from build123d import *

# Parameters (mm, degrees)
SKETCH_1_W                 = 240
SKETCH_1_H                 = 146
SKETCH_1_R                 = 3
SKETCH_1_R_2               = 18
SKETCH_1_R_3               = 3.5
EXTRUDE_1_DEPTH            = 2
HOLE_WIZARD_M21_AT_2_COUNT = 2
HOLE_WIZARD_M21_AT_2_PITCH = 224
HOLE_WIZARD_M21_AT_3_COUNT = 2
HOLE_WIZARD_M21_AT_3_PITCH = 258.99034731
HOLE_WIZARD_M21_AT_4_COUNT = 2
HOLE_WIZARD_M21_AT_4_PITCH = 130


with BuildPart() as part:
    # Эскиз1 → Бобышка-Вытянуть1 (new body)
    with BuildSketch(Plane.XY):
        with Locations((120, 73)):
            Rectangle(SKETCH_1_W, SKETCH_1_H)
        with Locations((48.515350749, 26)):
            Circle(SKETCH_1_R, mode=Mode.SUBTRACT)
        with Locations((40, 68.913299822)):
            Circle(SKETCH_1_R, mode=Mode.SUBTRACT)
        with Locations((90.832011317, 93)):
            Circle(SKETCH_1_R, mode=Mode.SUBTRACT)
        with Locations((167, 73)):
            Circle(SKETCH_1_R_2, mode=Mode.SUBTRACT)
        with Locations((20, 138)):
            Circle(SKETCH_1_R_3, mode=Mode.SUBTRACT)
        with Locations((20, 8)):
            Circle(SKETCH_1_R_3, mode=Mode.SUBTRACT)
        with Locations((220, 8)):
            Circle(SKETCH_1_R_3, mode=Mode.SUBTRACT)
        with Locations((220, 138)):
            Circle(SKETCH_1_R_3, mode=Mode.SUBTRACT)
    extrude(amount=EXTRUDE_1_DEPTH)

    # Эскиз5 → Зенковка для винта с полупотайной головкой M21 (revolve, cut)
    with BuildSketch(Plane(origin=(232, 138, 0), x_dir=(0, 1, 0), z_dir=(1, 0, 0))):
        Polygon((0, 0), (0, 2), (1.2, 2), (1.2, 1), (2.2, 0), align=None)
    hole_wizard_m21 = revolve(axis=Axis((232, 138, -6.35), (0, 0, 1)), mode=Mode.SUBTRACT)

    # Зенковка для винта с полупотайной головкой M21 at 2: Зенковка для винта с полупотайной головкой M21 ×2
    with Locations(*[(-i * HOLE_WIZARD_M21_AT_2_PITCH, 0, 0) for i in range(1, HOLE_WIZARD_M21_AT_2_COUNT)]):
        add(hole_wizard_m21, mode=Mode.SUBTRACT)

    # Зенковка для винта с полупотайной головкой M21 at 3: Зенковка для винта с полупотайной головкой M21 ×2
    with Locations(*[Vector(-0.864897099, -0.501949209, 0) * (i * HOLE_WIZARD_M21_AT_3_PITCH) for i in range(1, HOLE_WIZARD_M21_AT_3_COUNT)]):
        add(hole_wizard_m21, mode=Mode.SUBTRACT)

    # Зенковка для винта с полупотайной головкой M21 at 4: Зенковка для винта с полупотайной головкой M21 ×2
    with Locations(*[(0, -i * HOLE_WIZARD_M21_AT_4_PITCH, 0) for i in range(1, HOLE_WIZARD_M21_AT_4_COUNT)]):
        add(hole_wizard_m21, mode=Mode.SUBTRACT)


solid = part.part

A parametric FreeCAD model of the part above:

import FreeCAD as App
import Part
import Sketcher
Q = App.Units.Quantity


def add_polygon(sketch, points):
    """Adds a closed chain of lines whose ends are joined by coincident constraints."""
    first, n = sketch.GeometryCount, len(points)
    for a, b in zip(points, points[1:] + points[:1]):
        sketch.addGeometry(Part.LineSegment(App.Vector(*a, 0), App.Vector(*b, 0)), False)
    for i in range(n):
        sketch.addConstraint(Sketcher.Constraint("Coincident", first + i, 2, first + (i + 1) % n, 1))

doc = App.newDocument("Part")
params = doc.addObject("Spreadsheet::Sheet", "Params")
for row, (alias, value) in enumerate([
    ("sketch1_diameter", "7 mm"),
    ("sketch1_diameter2", "6 mm"),
    ("sketch1_diameter3", "36 mm"),
    ("sketch1_width", "240 mm"),
    ("sketch1_height", "146 mm"),
    ("pad1_length", "2 mm"),
    ("sketch2_height", "2 mm"),
    ("sketch2_height2", "1 mm"),
    ("sketch2_width", "2.2 mm"),
    ("groove_angle", "360 deg"),
    ("linearpattern_pitch", "224 mm"),
    ("linearpattern2_pitch", "258.990347 mm"),
    ("linearpattern3_pitch", "130 mm"),
], start=1):
    params.set(f"A{row}", alias)
    params.set(f"B{row}", "=" + value)
    params.setAlias(f"B{row}", alias)

body = doc.addObject("PartDesign::Body", "Body")

# Sketch on XY plane
sketch1 = body.newObject("Sketcher::SketchObject", "Sketch")
sketch1.AttachmentSupport = (doc.getObject("XY_Plane"), [""])
sketch1.MapMode = "FlatFace"
add_polygon(sketch1, [(0, 146), (0, 0), (240, 0), (240, 146)])  # lines 0-3
sketch1.addGeometry(Part.Circle(App.Vector(20, 8, 0), App.Vector(0, 0, 1), 3.5), False)  # 4
sketch1.addGeometry(Part.Circle(App.Vector(48.5, 26, 0), App.Vector(0, 0, 1), 3), False)  # 5
sketch1.addGeometry(Part.Circle(App.Vector(40, 68.9, 0), App.Vector(0, 0, 1), 3), False)  # 6
sketch1.addGeometry(Part.Circle(App.Vector(220, 8, 0), App.Vector(0, 0, 1), 3.5), False)  # 7
sketch1.addGeometry(Part.Circle(App.Vector(90.8, 93, 0), App.Vector(0, 0, 1), 3), False)  # 8
sketch1.addGeometry(Part.Circle(App.Vector(20, 138, 0), App.Vector(0, 0, 1), 3.5), False)  # 9
sketch1.addGeometry(Part.Circle(App.Vector(167, 73, 0), App.Vector(0, 0, 1), 18), False)  # 10
sketch1.addGeometry(Part.Circle(App.Vector(220, 138, 0), App.Vector(0, 0, 1), 3.5), False)  # 11
sketch1.addConstraint(Sketcher.Constraint("Vertical", 0))
sketch1.addConstraint(Sketcher.Constraint("Horizontal", 1))
sketch1.addConstraint(Sketcher.Constraint("Vertical", 2))
sketch1.addConstraint(Sketcher.Constraint("Horizontal", 3))
sketch1.addConstraint(Sketcher.Constraint("Coincident", 0, 2, -1, 1))
sketch1.addConstraint(Sketcher.Constraint("Equal", 5, 6))
sketch1.addConstraint(Sketcher.Constraint("Equal", 4, 7))
sketch1.addConstraint(Sketcher.Constraint("Equal", 6, 8))
sketch1.addConstraint(Sketcher.Constraint("Equal", 7, 9))
sketch1.addConstraint(Sketcher.Constraint("Equal", 9, 11))
sketch1.addConstraint(Sketcher.Constraint("Horizontal", 4, 3, 7, 3))
sketch1.addConstraint(Sketcher.Constraint("Horizontal", 9, 3, 11, 3))
sketch1.addConstraint(Sketcher.Constraint("Vertical", 4, 3, 9, 3))
sketch1.addConstraint(Sketcher.Constraint("Vertical", 7, 3, 11, 3))
sketch1.addConstraint(Sketcher.Constraint("Diameter", 4, 7.0))
sketch1.addConstraint(Sketcher.Constraint("Diameter", 5, 6.0))
sketch1.addConstraint(Sketcher.Constraint("Diameter", 10, 36.0))
sketch1.addConstraint(Sketcher.Constraint("DistanceX", 1, 1, 1, 2, 240.0))
sketch1.addConstraint(Sketcher.Constraint("DistanceY", 0, 2, 0, 1, 146.0))
sketch1.addConstraint(Sketcher.Constraint("DistanceX", -1, 1, 4, 3, 20.0))
sketch1.addConstraint(Sketcher.Constraint("DistanceY", -1, 1, 4, 3, 8.0))
sketch1.addConstraint(Sketcher.Constraint("DistanceY", -1, 1, 5, 3, 26.0))
sketch1.addConstraint(Sketcher.Constraint("DistanceX", -1, 1, 6, 3, 40.0))
sketch1.addConstraint(Sketcher.Constraint("DistanceX", -1, 1, 7, 3, 220.0))
sketch1.addConstraint(Sketcher.Constraint("DistanceY", -1, 1, 8, 3, 93.0))
sketch1.addConstraint(Sketcher.Constraint("DistanceY", -1, 1, 9, 3, 138.0))
sketch1.addConstraint(Sketcher.Constraint("DistanceX", -1, 1, 10, 3, 167.0))
sketch1.addConstraint(Sketcher.Constraint("DistanceY", -1, 1, 10, 3, 73.0))
sketch1.addConstraint(Sketcher.Constraint("DistanceY", -1, 1, 6, 3, 68.9133))
sketch1.addConstraint(Sketcher.Constraint("DistanceX", -1, 1, 5, 3, 48.515351))
sketch1.addConstraint(Sketcher.Constraint("DistanceX", -1, 1, 8, 3, 90.832011))
sketch1.setExpression("Constraints[18]", "Params.sketch1_diameter")
sketch1.setExpression("Constraints[19]", "Params.sketch1_diameter2")
sketch1.setExpression("Constraints[20]", "Params.sketch1_diameter3")
sketch1.setExpression("Constraints[21]", "Params.sketch1_width")
sketch1.setExpression("Constraints[22]", "Params.sketch1_height")
pad1 = body.newObject("PartDesign::Pad", "Pad")
pad1.Profile = sketch1
pad1.setExpression("Length", "Params.pad1_length")

# Sketch on YZ plane
sketch2 = body.newObject("Sketcher::SketchObject", "Sketch001")
sketch2.AttachmentSupport = (doc.getObject("YZ_Plane"), [""])
sketch2.MapMode = "FlatFace"
sketch2.AttachmentOffset = App.Placement(App.Vector(0, 0, 232), App.Rotation())
add_polygon(sketch2, [(138, 2), (138, 0), (140.2, 0), (139.2, 1), (139.2, 2)])  # lines 0-4
sketch2.addGeometry(Part.LineSegment(App.Vector(138, 0, 0), App.Vector(138, 2, 0)), True)  # axis
sketch2.addConstraint(Sketcher.Constraint("Vertical", 0))
sketch2.addConstraint(Sketcher.Constraint("Horizontal", 1))
sketch2.addConstraint(Sketcher.Constraint("Vertical", 3))
sketch2.addConstraint(Sketcher.Constraint("Horizontal", 4))
sketch2.addConstraint(Sketcher.Constraint("Vertical", 5))
sketch2.addConstraint(Sketcher.Constraint("Coincident", 5, 1, 0, 2))
sketch2.addConstraint(Sketcher.Constraint("PointOnObject", 0, 2, -1))
sketch2.addConstraint(Sketcher.Constraint("Horizontal", 3, 2, 5, 2))
sketch2.addConstraint(Sketcher.Constraint("DistanceY", 0, 2, 0, 1, 2.0))
sketch2.addConstraint(Sketcher.Constraint("DistanceY", 3, 1, 3, 2, 1.0))
sketch2.addConstraint(Sketcher.Constraint("Angle", 2, Q("135 deg")))
sketch2.addConstraint(Sketcher.Constraint("DistanceX", 1, 1, 1, 2, 2.2))
sketch2.addConstraint(Sketcher.Constraint("DistanceX", -1, 1, 0, 2, 138.0))
sketch2.setExpression("Constraints[13]", "Params.sketch2_height")
sketch2.setExpression("Constraints[14]", "Params.sketch2_height2")
sketch2.setExpression("Constraints[16]", "Params.sketch2_width")
groove = body.newObject("PartDesign::Groove", "Groove")
groove.Profile = sketch2
groove.ReferenceAxis = (sketch2, ["Axis0"])
groove.setExpression("Angle", "Params.groove_angle")
doc.recompute()

linearpattern = body.newObject("PartDesign::LinearPattern", "LinearPattern")
linearpattern.Originals = [groove]
linearpattern.Direction = (doc.getObject("X_Axis"), [""])
linearpattern.Mode = "offset"
linearpattern.setExpression("Offset", "Params.linearpattern_pitch")
linearpattern.Occurrences = 2
linearpattern.Reversed = True
body.Tip = linearpattern
doc.recompute()

datumline = body.newObject("PartDesign::Line", "DatumLine")
datumline.Placement = App.Placement(App.Vector(0, 0, 0), App.Rotation(App.Vector(0, 0, 1), App.Vector(-0.864897099, -0.501949209, 0)))
linearpattern2 = body.newObject("PartDesign::LinearPattern", "LinearPattern001")
linearpattern2.Originals = [groove]
linearpattern2.Direction = (datumline, [""])
linearpattern2.Mode = "offset"
linearpattern2.setExpression("Offset", "Params.linearpattern2_pitch")
linearpattern2.Occurrences = 2
body.Tip = linearpattern2
doc.recompute()

linearpattern3 = body.newObject("PartDesign::LinearPattern", "LinearPattern002")
linearpattern3.Originals = [groove]
linearpattern3.Direction = (doc.getObject("Y_Axis"), [""])
linearpattern3.Mode = "offset"
linearpattern3.setExpression("Offset", "Params.linearpattern3_pitch")
linearpattern3.Occurrences = 2
linearpattern3.Reversed = True
body.Tip = linearpattern3

doc.recompute()
